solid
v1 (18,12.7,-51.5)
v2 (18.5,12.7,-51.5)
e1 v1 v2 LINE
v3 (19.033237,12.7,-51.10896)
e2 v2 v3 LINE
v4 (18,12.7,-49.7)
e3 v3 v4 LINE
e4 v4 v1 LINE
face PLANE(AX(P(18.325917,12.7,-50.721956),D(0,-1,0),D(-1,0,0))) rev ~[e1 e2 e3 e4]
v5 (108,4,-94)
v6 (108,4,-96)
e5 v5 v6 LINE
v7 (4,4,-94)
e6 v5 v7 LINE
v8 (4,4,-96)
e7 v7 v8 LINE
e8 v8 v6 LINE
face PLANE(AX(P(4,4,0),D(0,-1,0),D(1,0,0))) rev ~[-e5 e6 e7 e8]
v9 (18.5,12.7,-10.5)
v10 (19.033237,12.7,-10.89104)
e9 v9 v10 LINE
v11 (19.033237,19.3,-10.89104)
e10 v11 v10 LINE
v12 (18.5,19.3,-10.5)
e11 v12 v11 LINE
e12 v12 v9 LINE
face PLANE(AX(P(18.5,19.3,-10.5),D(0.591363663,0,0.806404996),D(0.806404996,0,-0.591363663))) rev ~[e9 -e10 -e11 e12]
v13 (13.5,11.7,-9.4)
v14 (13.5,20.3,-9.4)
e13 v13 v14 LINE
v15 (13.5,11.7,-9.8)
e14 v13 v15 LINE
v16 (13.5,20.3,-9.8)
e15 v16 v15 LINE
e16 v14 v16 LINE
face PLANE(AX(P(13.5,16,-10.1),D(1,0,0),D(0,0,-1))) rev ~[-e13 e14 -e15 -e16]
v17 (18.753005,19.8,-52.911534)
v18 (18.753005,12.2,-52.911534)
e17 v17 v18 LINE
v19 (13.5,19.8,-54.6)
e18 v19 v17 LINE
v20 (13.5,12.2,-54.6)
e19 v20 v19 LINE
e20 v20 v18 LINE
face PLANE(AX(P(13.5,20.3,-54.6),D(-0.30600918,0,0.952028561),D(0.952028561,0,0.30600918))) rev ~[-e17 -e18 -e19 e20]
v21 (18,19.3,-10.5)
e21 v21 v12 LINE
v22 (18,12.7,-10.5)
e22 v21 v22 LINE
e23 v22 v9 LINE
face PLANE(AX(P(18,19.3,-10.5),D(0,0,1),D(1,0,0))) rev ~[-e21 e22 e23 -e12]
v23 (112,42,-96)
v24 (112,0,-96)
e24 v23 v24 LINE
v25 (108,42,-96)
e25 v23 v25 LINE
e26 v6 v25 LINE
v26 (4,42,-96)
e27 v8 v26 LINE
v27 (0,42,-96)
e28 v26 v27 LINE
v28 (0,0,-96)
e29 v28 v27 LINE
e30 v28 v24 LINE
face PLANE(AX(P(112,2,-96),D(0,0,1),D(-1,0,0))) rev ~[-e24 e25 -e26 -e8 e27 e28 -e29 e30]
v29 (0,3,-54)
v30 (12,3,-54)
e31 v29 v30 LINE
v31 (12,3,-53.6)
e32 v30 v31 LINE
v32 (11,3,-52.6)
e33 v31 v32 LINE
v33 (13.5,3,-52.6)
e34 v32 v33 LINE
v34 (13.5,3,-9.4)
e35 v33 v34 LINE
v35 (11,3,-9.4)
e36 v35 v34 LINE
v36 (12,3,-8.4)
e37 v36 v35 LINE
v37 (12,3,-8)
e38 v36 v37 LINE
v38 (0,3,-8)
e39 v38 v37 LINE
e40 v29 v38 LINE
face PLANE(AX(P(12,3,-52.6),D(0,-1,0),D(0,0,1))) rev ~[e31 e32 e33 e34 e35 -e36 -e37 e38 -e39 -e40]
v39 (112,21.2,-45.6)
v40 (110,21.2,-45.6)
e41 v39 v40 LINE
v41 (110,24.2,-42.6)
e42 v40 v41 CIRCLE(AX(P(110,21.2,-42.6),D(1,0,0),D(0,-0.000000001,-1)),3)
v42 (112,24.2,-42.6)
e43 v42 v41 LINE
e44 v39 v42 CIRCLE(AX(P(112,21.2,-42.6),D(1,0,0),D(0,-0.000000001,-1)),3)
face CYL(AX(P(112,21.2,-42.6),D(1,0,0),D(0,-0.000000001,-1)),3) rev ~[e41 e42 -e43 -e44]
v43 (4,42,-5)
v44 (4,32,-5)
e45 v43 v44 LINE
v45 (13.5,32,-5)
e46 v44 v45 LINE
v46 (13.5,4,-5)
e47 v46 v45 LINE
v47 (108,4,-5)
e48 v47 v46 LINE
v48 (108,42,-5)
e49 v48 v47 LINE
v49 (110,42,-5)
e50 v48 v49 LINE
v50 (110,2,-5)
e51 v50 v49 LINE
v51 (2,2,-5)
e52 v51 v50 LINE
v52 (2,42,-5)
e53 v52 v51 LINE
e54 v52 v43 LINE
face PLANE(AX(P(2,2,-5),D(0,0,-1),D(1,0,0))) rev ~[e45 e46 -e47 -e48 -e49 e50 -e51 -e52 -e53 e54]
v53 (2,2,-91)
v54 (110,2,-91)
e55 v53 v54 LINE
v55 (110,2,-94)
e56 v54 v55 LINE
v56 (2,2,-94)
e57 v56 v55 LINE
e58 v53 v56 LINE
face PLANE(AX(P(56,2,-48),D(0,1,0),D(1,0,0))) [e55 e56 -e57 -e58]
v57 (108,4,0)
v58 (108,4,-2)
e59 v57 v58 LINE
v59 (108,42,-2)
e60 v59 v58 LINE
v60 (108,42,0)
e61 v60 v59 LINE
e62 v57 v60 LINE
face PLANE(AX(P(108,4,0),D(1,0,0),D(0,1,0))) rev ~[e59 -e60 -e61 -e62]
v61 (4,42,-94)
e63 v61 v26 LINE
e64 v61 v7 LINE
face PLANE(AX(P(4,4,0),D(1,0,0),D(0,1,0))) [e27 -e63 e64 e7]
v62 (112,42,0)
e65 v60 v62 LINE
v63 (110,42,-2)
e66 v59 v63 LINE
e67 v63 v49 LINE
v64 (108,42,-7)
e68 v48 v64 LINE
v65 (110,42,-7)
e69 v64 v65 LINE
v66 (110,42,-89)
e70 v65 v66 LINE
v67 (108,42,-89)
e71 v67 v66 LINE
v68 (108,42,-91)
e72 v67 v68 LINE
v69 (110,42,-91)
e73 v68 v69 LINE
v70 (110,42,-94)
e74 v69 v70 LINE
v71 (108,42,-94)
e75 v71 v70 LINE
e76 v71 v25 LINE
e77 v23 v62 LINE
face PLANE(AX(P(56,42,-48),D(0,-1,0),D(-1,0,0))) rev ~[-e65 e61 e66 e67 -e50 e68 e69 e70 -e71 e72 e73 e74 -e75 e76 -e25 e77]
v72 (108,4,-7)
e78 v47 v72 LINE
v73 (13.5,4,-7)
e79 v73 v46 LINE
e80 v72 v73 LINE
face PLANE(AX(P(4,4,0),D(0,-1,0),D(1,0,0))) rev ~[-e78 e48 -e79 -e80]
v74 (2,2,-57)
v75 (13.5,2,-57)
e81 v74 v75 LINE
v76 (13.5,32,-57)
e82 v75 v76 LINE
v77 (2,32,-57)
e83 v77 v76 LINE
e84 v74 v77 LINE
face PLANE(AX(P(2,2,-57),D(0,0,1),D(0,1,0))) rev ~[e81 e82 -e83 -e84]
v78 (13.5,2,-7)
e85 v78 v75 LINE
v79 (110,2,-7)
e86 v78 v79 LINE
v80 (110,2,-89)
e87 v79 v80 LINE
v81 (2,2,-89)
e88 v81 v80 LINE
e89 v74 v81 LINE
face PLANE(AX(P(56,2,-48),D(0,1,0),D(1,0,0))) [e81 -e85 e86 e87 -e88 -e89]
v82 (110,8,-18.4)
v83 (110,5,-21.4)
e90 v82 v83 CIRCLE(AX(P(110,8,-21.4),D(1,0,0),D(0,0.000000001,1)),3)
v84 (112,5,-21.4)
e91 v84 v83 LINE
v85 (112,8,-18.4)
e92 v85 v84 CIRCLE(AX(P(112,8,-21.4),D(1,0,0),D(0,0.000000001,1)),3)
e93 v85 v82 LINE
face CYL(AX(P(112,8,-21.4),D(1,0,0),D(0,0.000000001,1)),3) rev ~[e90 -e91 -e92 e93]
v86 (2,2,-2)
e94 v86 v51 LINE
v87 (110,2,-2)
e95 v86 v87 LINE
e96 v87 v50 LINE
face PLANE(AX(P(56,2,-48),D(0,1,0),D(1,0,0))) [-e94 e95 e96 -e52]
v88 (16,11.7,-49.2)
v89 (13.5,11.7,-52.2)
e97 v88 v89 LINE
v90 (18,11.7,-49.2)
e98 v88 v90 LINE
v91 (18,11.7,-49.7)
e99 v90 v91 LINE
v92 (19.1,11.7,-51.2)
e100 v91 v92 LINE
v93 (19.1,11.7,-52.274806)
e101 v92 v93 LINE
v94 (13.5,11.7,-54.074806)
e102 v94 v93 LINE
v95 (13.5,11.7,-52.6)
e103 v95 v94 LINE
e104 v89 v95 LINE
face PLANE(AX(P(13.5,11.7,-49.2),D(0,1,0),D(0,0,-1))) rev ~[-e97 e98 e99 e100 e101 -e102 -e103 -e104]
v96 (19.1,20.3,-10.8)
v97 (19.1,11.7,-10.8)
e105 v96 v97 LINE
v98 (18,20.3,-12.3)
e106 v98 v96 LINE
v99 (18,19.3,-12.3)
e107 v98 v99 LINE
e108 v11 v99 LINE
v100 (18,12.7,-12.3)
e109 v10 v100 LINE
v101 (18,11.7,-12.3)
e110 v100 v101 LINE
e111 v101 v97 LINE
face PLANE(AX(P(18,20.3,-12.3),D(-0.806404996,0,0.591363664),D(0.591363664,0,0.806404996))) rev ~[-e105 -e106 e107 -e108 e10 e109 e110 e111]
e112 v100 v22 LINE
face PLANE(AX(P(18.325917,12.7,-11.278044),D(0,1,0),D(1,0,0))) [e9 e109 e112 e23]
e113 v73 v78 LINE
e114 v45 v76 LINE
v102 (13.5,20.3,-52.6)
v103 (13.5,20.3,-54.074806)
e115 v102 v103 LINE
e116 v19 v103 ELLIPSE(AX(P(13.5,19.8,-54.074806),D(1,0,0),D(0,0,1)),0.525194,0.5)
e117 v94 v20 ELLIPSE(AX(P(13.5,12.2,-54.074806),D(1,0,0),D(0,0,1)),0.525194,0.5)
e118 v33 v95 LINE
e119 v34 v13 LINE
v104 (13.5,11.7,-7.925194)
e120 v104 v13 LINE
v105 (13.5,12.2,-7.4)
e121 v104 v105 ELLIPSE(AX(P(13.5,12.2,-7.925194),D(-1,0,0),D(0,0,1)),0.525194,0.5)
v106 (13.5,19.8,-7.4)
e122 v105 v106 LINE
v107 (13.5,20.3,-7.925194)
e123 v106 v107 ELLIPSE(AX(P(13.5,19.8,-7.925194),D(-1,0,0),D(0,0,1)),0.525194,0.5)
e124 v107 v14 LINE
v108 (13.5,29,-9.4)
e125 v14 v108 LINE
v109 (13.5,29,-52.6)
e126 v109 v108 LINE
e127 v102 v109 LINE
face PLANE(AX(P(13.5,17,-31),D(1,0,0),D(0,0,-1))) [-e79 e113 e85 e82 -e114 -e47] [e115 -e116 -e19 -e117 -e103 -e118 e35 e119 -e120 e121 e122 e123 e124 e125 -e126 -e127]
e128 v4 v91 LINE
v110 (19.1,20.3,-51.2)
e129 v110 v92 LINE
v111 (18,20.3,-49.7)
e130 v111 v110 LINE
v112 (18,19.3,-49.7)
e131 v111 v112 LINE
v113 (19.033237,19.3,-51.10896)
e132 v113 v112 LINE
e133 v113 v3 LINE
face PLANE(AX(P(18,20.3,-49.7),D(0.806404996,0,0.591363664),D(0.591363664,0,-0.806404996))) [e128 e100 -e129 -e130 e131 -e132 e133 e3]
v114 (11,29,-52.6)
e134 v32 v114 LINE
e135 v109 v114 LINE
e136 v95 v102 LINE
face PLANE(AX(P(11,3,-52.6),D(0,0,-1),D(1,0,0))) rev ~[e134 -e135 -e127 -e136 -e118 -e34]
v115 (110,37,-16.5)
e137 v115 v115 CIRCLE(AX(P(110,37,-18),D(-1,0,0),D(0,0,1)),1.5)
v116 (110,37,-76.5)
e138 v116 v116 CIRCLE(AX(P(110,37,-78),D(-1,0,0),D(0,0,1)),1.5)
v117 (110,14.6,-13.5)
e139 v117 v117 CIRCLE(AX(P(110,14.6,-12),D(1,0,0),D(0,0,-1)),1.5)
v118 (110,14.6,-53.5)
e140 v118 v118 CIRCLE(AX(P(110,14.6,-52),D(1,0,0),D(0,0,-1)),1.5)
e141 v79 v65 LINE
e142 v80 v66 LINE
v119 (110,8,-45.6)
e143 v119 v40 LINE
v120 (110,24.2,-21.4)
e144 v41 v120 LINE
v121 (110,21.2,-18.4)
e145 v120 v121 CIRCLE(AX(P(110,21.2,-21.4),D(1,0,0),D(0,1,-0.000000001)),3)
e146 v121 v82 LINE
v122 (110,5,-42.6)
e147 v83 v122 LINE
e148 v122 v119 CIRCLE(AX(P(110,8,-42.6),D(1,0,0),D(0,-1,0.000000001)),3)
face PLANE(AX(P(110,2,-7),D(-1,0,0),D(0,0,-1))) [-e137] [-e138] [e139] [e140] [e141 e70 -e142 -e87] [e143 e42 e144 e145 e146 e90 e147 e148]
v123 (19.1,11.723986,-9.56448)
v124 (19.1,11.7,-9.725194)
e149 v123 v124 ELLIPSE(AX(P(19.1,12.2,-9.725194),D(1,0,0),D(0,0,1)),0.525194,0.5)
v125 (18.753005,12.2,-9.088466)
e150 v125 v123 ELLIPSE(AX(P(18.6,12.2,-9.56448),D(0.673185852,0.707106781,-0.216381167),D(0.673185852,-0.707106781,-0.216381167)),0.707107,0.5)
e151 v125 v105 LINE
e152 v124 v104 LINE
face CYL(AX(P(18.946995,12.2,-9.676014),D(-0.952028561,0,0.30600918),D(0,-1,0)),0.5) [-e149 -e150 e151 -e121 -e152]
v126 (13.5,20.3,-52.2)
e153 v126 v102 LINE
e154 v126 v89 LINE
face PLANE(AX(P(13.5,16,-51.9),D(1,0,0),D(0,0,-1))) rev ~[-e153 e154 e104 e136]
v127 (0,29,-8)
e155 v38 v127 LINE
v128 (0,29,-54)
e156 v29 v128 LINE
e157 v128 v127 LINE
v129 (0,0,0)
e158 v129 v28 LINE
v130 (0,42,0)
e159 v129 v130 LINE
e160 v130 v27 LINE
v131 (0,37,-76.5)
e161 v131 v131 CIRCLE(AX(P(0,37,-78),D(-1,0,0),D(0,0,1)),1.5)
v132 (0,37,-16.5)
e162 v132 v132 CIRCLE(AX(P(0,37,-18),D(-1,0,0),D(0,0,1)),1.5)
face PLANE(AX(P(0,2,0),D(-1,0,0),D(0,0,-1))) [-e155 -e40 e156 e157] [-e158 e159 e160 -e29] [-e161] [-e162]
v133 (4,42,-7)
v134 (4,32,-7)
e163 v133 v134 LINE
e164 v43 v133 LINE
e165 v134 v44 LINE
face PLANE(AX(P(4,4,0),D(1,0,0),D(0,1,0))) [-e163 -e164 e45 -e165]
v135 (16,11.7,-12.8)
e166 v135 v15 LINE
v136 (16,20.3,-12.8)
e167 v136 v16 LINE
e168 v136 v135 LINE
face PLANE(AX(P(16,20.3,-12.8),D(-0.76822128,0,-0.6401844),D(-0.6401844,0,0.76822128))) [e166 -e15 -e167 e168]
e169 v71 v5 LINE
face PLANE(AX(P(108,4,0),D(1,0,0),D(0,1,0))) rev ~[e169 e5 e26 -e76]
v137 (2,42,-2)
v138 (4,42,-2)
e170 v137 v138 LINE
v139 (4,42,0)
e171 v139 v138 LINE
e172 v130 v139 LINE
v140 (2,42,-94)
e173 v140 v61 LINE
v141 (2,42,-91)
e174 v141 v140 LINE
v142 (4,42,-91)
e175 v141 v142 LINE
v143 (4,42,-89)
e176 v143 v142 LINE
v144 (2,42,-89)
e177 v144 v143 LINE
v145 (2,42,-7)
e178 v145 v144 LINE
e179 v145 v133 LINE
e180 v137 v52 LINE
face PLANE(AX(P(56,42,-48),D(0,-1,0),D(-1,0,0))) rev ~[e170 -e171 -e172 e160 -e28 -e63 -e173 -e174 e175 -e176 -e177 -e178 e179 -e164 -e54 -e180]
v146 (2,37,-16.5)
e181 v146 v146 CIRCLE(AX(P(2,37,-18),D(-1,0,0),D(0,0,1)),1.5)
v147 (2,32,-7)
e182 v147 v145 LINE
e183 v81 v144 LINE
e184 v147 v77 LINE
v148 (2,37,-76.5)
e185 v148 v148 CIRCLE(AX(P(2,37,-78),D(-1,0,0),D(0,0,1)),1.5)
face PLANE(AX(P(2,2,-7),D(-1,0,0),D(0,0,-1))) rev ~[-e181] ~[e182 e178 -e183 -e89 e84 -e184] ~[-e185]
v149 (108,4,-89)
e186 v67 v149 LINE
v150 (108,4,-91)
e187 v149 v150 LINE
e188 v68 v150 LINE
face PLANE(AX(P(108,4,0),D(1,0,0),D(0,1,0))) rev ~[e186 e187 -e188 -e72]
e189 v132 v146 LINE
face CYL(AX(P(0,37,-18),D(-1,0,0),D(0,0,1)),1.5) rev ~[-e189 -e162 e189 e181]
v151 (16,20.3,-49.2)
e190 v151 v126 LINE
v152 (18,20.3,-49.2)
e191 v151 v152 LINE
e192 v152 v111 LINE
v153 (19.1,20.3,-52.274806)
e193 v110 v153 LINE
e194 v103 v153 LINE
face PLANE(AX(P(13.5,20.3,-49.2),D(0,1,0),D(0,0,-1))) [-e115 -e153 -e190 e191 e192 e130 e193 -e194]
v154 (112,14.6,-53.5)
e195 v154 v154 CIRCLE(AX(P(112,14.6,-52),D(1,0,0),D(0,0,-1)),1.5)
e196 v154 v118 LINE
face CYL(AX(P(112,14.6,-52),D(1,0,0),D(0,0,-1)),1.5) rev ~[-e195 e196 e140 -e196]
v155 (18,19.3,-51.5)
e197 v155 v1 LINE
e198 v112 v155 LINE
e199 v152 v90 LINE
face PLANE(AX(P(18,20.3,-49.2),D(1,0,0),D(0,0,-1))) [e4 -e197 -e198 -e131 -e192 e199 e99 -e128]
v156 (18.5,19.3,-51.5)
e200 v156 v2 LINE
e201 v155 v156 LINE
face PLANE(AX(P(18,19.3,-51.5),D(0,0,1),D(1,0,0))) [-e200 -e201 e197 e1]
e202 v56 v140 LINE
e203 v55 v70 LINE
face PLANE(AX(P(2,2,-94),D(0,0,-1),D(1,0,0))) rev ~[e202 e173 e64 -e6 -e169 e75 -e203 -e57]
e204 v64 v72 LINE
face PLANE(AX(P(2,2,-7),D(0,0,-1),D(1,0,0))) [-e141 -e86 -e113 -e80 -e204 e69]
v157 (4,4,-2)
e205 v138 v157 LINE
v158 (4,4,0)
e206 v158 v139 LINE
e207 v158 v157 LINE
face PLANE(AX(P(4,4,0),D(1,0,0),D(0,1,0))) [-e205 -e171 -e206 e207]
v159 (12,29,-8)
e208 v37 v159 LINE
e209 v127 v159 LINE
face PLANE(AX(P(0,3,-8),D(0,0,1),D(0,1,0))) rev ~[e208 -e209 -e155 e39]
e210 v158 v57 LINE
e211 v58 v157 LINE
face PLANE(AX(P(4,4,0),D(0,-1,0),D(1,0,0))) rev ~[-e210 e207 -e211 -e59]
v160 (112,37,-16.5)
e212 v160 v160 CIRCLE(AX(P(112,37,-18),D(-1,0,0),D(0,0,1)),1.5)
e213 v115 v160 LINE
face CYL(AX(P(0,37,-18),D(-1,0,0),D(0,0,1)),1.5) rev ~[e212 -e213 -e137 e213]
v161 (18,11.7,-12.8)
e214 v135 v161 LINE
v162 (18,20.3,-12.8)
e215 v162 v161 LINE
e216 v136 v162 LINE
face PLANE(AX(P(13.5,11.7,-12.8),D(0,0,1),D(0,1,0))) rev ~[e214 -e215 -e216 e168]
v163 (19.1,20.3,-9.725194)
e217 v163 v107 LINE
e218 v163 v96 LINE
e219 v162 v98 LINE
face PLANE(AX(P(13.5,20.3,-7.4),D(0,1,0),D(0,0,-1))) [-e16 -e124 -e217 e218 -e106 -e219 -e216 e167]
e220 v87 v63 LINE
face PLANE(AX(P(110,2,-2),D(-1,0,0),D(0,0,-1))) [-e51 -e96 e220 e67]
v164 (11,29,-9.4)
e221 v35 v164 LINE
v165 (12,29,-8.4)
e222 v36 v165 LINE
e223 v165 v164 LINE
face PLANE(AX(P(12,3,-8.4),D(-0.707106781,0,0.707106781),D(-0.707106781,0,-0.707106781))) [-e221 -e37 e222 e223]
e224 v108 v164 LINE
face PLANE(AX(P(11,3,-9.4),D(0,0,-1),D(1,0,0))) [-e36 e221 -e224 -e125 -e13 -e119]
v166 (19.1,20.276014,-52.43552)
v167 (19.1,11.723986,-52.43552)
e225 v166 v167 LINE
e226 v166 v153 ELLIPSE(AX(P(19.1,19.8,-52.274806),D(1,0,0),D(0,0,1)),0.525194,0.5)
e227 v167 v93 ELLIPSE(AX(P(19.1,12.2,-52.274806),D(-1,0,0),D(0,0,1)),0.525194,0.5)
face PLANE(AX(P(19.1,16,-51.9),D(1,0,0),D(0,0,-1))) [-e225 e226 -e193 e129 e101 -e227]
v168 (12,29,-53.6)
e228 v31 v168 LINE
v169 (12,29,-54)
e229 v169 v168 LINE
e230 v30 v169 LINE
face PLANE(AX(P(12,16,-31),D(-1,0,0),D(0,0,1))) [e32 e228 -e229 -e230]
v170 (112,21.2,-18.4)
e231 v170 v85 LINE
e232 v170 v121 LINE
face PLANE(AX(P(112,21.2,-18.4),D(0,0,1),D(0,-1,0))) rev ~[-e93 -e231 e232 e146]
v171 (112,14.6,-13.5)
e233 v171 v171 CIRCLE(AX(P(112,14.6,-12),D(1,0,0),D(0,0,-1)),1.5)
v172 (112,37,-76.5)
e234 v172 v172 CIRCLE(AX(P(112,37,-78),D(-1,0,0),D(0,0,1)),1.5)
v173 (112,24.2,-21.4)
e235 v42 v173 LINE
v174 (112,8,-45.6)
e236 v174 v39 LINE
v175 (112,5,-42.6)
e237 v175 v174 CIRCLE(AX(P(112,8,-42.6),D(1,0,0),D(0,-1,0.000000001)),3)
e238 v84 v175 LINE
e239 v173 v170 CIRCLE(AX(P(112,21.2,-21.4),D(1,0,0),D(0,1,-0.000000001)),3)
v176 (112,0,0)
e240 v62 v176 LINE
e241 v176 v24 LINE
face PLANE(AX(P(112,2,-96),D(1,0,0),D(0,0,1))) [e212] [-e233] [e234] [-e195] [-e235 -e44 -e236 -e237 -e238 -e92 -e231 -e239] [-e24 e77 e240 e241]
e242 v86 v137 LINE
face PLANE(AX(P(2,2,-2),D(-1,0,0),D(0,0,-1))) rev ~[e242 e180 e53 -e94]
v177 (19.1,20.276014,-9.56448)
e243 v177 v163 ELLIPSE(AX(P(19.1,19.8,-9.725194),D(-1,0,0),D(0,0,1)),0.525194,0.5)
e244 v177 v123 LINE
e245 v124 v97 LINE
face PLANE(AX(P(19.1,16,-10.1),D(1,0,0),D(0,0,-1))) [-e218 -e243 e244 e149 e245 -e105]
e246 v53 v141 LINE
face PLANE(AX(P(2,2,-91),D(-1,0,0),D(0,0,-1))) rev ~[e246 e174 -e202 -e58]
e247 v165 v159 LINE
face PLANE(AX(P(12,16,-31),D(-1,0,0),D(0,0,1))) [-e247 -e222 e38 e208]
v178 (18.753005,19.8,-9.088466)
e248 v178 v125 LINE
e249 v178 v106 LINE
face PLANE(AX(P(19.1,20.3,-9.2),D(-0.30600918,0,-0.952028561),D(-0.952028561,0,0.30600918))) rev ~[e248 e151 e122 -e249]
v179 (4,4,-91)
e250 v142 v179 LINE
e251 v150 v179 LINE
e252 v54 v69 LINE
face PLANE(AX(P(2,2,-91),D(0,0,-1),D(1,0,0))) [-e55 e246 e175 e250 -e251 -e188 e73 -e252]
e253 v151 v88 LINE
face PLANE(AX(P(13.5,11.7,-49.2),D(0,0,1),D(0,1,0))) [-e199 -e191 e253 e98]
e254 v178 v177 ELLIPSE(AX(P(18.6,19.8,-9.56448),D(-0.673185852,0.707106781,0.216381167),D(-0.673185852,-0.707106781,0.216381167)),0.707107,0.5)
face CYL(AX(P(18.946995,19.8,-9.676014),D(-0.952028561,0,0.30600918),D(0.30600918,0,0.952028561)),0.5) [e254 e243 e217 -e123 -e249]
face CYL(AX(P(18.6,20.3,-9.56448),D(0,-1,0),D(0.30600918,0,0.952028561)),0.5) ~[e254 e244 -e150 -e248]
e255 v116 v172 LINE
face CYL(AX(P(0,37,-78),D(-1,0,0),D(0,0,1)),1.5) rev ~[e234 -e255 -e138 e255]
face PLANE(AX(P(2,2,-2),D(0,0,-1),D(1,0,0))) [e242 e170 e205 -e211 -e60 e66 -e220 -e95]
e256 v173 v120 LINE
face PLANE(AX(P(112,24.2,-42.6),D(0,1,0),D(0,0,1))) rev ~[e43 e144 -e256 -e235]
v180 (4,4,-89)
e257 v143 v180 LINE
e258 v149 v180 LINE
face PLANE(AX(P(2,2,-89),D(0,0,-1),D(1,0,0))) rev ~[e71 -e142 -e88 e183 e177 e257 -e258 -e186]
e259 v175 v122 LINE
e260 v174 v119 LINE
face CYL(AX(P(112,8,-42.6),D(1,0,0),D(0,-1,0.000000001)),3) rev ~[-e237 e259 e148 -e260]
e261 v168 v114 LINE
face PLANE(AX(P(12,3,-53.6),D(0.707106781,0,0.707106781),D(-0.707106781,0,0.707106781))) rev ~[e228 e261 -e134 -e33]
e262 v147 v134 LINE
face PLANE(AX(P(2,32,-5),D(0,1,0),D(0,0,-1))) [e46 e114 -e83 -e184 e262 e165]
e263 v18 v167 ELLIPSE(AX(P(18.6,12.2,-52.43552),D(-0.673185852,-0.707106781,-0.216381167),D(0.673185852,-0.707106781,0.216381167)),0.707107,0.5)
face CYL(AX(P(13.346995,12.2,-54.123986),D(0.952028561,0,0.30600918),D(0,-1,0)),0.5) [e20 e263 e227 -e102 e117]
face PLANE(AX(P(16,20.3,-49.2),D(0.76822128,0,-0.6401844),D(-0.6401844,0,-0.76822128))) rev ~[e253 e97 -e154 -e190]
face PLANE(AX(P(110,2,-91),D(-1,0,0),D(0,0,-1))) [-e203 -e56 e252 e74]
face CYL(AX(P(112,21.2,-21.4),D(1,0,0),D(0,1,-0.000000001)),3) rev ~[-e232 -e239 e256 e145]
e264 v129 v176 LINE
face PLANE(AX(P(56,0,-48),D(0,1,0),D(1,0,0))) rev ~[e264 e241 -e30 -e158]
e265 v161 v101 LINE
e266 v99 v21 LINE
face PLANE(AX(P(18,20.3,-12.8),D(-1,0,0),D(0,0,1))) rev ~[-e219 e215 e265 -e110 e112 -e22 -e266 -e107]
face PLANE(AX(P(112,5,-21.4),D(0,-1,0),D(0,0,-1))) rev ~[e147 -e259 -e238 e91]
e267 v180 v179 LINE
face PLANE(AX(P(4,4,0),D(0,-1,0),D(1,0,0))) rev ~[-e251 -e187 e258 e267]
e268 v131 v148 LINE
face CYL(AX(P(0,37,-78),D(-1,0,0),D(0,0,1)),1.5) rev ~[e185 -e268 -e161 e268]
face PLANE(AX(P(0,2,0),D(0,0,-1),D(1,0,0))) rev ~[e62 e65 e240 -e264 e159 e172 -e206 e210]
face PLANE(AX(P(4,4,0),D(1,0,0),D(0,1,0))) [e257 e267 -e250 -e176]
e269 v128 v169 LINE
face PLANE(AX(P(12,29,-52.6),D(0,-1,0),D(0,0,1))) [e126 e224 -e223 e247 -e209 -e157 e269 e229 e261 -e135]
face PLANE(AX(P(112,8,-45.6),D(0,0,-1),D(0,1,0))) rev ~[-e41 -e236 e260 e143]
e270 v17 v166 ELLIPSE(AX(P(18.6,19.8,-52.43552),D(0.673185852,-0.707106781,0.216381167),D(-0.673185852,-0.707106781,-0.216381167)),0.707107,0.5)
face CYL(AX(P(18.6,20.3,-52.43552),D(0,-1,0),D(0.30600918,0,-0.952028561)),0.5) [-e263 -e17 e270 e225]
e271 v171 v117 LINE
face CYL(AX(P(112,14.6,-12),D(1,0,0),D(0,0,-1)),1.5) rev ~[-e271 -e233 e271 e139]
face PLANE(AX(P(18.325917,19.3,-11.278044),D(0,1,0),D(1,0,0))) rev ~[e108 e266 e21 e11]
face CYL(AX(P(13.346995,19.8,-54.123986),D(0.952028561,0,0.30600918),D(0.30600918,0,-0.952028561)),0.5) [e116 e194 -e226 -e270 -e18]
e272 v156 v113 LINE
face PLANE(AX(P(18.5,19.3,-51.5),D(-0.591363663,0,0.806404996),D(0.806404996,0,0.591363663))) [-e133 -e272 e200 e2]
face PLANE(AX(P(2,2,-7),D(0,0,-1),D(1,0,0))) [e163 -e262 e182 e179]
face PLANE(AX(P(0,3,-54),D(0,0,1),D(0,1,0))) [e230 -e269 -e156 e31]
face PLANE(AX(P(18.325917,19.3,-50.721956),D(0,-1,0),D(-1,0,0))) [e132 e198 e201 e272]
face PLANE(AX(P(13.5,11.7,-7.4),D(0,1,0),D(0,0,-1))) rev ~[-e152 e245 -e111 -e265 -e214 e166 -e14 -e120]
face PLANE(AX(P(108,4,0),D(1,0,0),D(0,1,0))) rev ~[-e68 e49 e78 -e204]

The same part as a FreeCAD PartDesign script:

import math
import FreeCAD as App
import Part
import Sketcher


def edges_at(feature, points):
    """Names of the edges that pass closest to the given points."""
    edges = feature.Shape.Edges
    near = lambda p: min(range(len(edges)), key=lambda i: edges[i].distToShape(Part.Vertex(*p))[0])
    return sorted({f"Edge{near(p) + 1}" for p in points})

doc = App.newDocument("Part")
params = doc.addObject("Spreadsheet::Sheet", "Params")
for row, (alias, value) in enumerate([
    ("sketch1_width", "112 mm"),
    ("sketch1_height", "96 mm"),
    ("pad1_length", "2 mm"),
    ("sketch2_width", "112 mm"),
    ("sketch2_width2", "108 mm"),
    ("sketch2_height", "96 mm"),
    ("sketch2_height2", "3 mm"),
    ("sketch2_height3", "82 mm"),
    ("pad2_length", "40 mm"),
    ("sketch3_width", "104 mm"),
    ("sketch3_height", "38 mm"),
    ("sketch4_width", "30 mm"),
    ("sketch4_height", "52 mm"),
    ("pad3_length", "11.5 mm"),
    ("sketch5_width", "26 mm"),
    ("sketch5_height", "46 mm"),
    ("pocket2_length", "12 mm"),
    ("sketch6_width", "26 mm"),
    ("sketch6_height", "43.2 mm"),
    ("pocket3_length", "1.5 mm"),
    ("sketch7_width", "1 mm"),
    ("pad4_length", "26 mm"),
    ("sketch8_width", "8.6 mm"),
    ("sketch8_height", "5.4 mm"),
    ("pad5_length", "5.6 mm"),
    ("sketch9_width", "5.6 mm"),
    ("sketch9_height", "1.8 mm"),
    ("pocket4_length", "8.6 mm"),
    ("sketch10_height", "3 mm"),
    ("sketch10_width", "2.5 mm"),
    ("pocket5_length", "8.6 mm"),
    ("sketch11_height", "2 mm"),
    ("sketch11_width", "1.1 mm"),
    ("sketch11_height2", "0.5 mm"),
    ("pocket6_length", "8.6 mm"),
    ("sketch12_width", "0.5 mm"),
    ("sketch12_height", "1.8 mm"),
    ("pocket7_length", "6.6 mm"),
    ("fillet_radius", "0.5 mm"),
    ("fillet2_radius", "0.5 mm"),
    ("sketch13_radius", "3 mm"),
    ("sketch13_width", "13.2 mm"),
    ("sketch13_height", "21.2 mm"),
    ("pocket8_length", "2 mm"),
    ("sketch14_diameter", "3 mm"),
    ("pocket9_length", "2 mm"),
    ("sketch15_diameter", "3 mm"),
], start=1):
    params.set(f"A{row}", alias)
    params.set(f"B{row}", "=" + value)
    params.setAlias(f"B{row}", alias)

body = doc.addObject("PartDesign::Body", "Body")

sketch1 = body.newObject("Sketcher::SketchObject", "Sketch")
sketch1.AttachmentSupport = (doc.getObject("XZ_Plane"), [""])
sketch1.MapMode = "FlatFace"
sketch1.addGeometry([
    Part.LineSegment(App.Vector(0, -96, 0), App.Vector(0, 0, 0)),
    Part.LineSegment(App.Vector(0, 0, 0), App.Vector(112, 0, 0)),
    Part.LineSegment(App.Vector(112, 0, 0), App.Vector(112, -96, 0)),
    Part.LineSegment(App.Vector(112, -96, 0), App.Vector(0, -96, 0)),
], False)
sketch1.addConstraint([
    Sketcher.Constraint("Coincident", 0, 2, 1, 1),
    Sketcher.Constraint("Coincident", 1, 2, 2, 1),
    Sketcher.Constraint("Coincident", 2, 2, 3, 1),
    Sketcher.Constraint("Coincident", 3, 2, 0, 1),
    Sketcher.Constraint("Vertical", 0),
    Sketcher.Constraint("Horizontal", 1),
    Sketcher.Constraint("Vertical", 2),
    Sketcher.Constraint("Horizontal", 3),
    Sketcher.Constraint("Coincident", 0, 2, -1, 1),
    Sketcher.Constraint("DistanceX", 1, 1, 1, 2, 112.0),
    Sketcher.Constraint("DistanceY", 0, 1, 0, 2, 96.0),
])
sketch1.setExpression("Constraints[9]", "Params.sketch1_width")
sketch1.setExpression("Constraints[10]", "Params.sketch1_height")
pad1 = body.newObject("PartDesign::Pad", "Pad")
pad1.Profile = sketch1
pad1.setExpression("Length", "Params.pad1_length")
pad1.Reversed = True

sketch2 = body.newObject("Sketcher::SketchObject", "Sketch001")
sketch2.AttachmentSupport = (doc.getObject("XZ_Plane"), [""])
sketch2.MapMode = "FlatFace"
sketch2.AttachmentOffset = App.Placement(App.Vector(0, 0, -2), App.Rotation())
sketch2.addGeometry([
    Part.LineSegment(App.Vector(112, -96, 0), App.Vector(0, -96, 0)),
    Part.LineSegment(App.Vector(0, -96, 0), App.Vector(0, 0, 0)),
    Part.LineSegment(App.Vector(0, 0, 0), App.Vector(112, 0, 0)),
    Part.LineSegment(App.Vector(112, 0, 0), App.Vector(112, -96, 0)),
    Part.LineSegment(App.Vector(2, -2, 0), App.Vector(2, -5, 0)),
    Part.LineSegment(App.Vector(2, -5, 0), App.Vector(110, -5, 0)),
    Part.LineSegment(App.Vector(110, -5, 0), App.Vector(110, -2, 0)),
    Part.LineSegment(App.Vector(110, -2, 0), App.Vector(2, -2, 0)),
    Part.LineSegment(App.Vector(2, -7, 0), App.Vector(2, -89, 0)),
    Part.LineSegment(App.Vector(2, -89, 0), App.Vector(110, -89, 0)),
    Part.LineSegment(App.Vector(110, -89, 0), App.Vector(110, -7, 0)),
    Part.LineSegment(App.Vector(110, -7, 0), App.Vector(2, -7, 0)),
    Part.LineSegment(App.Vector(2, -91, 0), App.Vector(2, -94, 0)),
    Part.LineSegment(App.Vector(2, -94, 0), App.Vector(110, -94, 0)),
    Part.LineSegment(App.Vector(110, -94, 0), App.Vector(110, -91, 0)),
    Part.LineSegment(App.Vector(110, -91, 0), App.Vector(2, -91, 0)),
], False)
sketch2.addConstraint([
    Sketcher.Constraint("Coincident", 0, 2, 1, 1),
    Sketcher.Constraint("Coincident", 1, 2, 2, 1),
    Sketcher.Constraint("Coincident", 2, 2, 3, 1),
    Sketcher.Constraint("Coincident", 3, 2, 0, 1),
    Sketcher.Constraint("Coincident", 4, 2, 5, 1),
    Sketcher.Constraint("Coincident", 5, 2, 6, 1),
    Sketcher.Constraint("Coincident", 6, 2, 7, 1),
    Sketcher.Constraint("Coincident", 7, 2, 4, 1),
    Sketcher.Constraint("Coincident", 8, 2, 9, 1),
    Sketcher.Constraint("Coincident", 9, 2, 10, 1),
    Sketcher.Constraint("Coincident", 10, 2, 11, 1),
    Sketcher.Constraint("Coincident", 11, 2, 8, 1),
    Sketcher.Constraint("Coincident", 12, 2, 13, 1),
    Sketcher.Constraint("Coincident", 13, 2, 14, 1),
    Sketcher.Constraint("Coincident", 14, 2, 15, 1),
    Sketcher.Constraint("Coincident", 15, 2, 12, 1),
    Sketcher.Constraint("Horizontal", 0),
    Sketcher.Constraint("Vertical", 1),
    Sketcher.Constraint("Horizontal", 2),
    Sketcher.Constraint("Vertical", 3),
    Sketcher.Constraint("Vertical", 4),
    Sketcher.Constraint("Horizontal", 5),
    Sketcher.Constraint("Vertical", 6),
    Sketcher.Constraint("Horizontal", 7),
    Sketcher.Constraint("Vertical", 8),
    Sketcher.Constraint("Horizontal", 9),
    Sketcher.Constraint("Vertical", 10),
    Sketcher.Constraint("Horizontal", 11),
    Sketcher.Constraint("Vertical", 12),
    Sketcher.Constraint("Horizontal", 13),
    Sketcher.Constraint("Vertical", 14),
    Sketcher.Constraint("Horizontal", 15),
    Sketcher.Constraint("Coincident", 1, 2, -1, 1),
    Sketcher.Constraint("Vertical", 7, 2, 8, 2),
    Sketcher.Constraint("Vertical", 6, 2, 9, 2),
    Sketcher.Constraint("Vertical", 11, 2, 12, 2),
    Sketcher.Constraint("Vertical", 10, 2, 13, 2),
    Sketcher.Constraint("Equal", 6, 12),
    Sketcher.Constraint("DistanceX", 0, 2, 0, 1, 112.0),
    Sketcher.Constraint("DistanceX", 5, 1, 5, 2, 108.0),
    Sketcher.Constraint("DistanceY", 1, 1, 1, 2, 96.0),
    Sketcher.Constraint("DistanceY", 4, 2, 4, 1, 3.0),
    Sketcher.Constraint("DistanceY", 8, 2, 8, 1, 82.0),
    Sketcher.Constraint("DistanceX", -1, 1, 4, 2, 2.0),
    Sketcher.Constraint("DistanceY", 4, 2, -1, 1, 5.0),
    Sketcher.Constraint("DistanceY", 8, 2, -1, 1, 89.0),
    Sketcher.Constraint("DistanceY", 12, 2, -1, 1, 94.0),
])
sketch2.setExpression("Constraints[38]", "Params.sketch2_width")
sketch2.setExpression("Constraints[39]", "Params.sketch2_width2")
sketch2.setExpression("Constraints[40]", "Params.sketch2_height")
sketch2.setExpression("Constraints[41]", "Params.sketch2_height2")
sketch2.setExpression("Constraints[42]", "Params.sketch2_height3")
pad2 = body.newObject("PartDesign::Pad", "Pad001")
pad2.Profile = sketch2
pad2.setExpression("Length", "Params.pad2_length")
pad2.Reversed = True

sketch3 = body.newObject("Sketcher::SketchObject", "Sketch002")
sketch3.AttachmentSupport = (doc.getObject("XY_Plane"), [""])
sketch3.MapMode = "FlatFace"
sketch3.addGeometry([
    Part.LineSegment(App.Vector(4, 42, 0), App.Vector(4, 4, 0)),
    Part.LineSegment(App.Vector(4, 4, 0), App.Vector(108, 4, 0)),
    Part.LineSegment(App.Vector(108, 4, 0), App.Vector(108, 42, 0)),
    Part.LineSegment(App.Vector(108, 42, 0), App.Vector(4, 42, 0)),
], False)
sketch3.addConstraint([
    Sketcher.Constraint("Coincident", 0, 2, 1, 1),
    Sketcher.Constraint("Coincident", 1, 2, 2, 1),
    Sketcher.Constraint("Coincident", 2, 2, 3, 1),
    Sketcher.Constraint("Coincident", 3, 2, 0, 1),
    Sketcher.Constraint("Vertical", 0),
    Sketcher.Constraint("Horizontal", 1),
    Sketcher.Constraint("Vertical", 2),
    Sketcher.Constraint("Horizontal", 3),
    Sketcher.Constraint("DistanceX", 1, 1, 1, 2, 104.0),
    Sketcher.Constraint("DistanceY", 0, 2, 0, 1, 38.0),
    Sketcher.Constraint("DistanceX", -1, 1, 0, 2, 4.0),
    Sketcher.Constraint("DistanceY", -1, 1, 0, 2, 4.0),
])
sketch3.setExpression("Constraints[8]", "Params.sketch3_width")
sketch3.setExpression("Constraints[9]", "Params.sketch3_height")
pocket1 = body.newObject("PartDesign::Pocket", "Pocket")
pocket1.Profile = sketch3
pocket1.Type = "ThroughAll"

sketch4 = body.newObject("Sketcher::SketchObject", "Sketch003")
sketch4.AttachmentSupport = (doc.getObject("YZ_Plane"), [""])
sketch4.MapMode = "FlatFace"
sketch4.AttachmentOffset = App.Placement(App.Vector(0, 0, 2), App.Rotation())
sketch4.addGeometry([
    Part.LineSegment(App.Vector(32, -5, 0), App.Vector(2, -5, 0)),
    Part.LineSegment(App.Vector(2, -5, 0), App.Vector(2, -57, 0)),
    Part.LineSegment(App.Vector(2, -57, 0), App.Vector(32, -57, 0)),
    Part.LineSegment(App.Vector(32, -57, 0), App.Vector(32, -5, 0)),
], False)
sketch4.addConstraint([
    Sketcher.Constraint("Coincident", 0, 2, 1, 1),
    Sketcher.Constraint("Coincident", 1, 2, 2, 1),
    Sketcher.Constraint("Coincident", 2, 2, 3, 1),
    Sketcher.Constraint("Coincident", 3, 2, 0, 1),
    Sketcher.Constraint("Horizontal", 0),
    Sketcher.Constraint("Vertical", 1),
    Sketcher.Constraint("Horizontal", 2),
    Sketcher.Constraint("Vertical", 3),
    Sketcher.Constraint("DistanceX", 0, 2, 0, 1, 30.0),
    Sketcher.Constraint("DistanceY", 1, 2, 1, 1, 52.0),
    Sketcher.Constraint("DistanceX", -1, 1, 0, 2, 2.0),
    Sketcher.Constraint("DistanceY", 0, 2, -1, 1, 5.0),
])
sketch4.setExpression("Constraints[8]", "Params.sketch4_width")
sketch4.setExpression("Constraints[9]", "Params.sketch4_height")
pad3 = body.newObject("PartDesign::Pad", "Pad002")
pad3.Profile = sketch4
pad3.setExpression("Length", "Params.pad3_length")

sketch5 = body.newObject("Sketcher::SketchObject", "Sketch004")
sketch5.AttachmentSupport = (doc.getObject("YZ_Plane"), [""])
sketch5.MapMode = "FlatFace"
sketch5.addGeometry([
    Part.LineSegment(App.Vector(29, -54, 0), App.Vector(3, -54, 0)),
    Part.LineSegment(App.Vector(3, -54, 0), App.Vector(3, -8, 0)),
    Part.LineSegment(App.Vector(3, -8, 0), App.Vector(29, -8, 0)),
    Part.LineSegment(App.Vector(29, -8, 0), App.Vector(29, -54, 0)),
], False)
sketch5.addConstraint([
    Sketcher.Constraint("Coincident", 0, 2, 1, 1),
    Sketcher.Constraint("Coincident", 1, 2, 2, 1),
    Sketcher.Constraint("Coincident", 2, 2, 3, 1),
    Sketcher.Constraint("Coincident", 3, 2, 0, 1),
    Sketcher.Constraint("Horizontal", 0),
    Sketcher.Constraint("Vertical", 1),
    Sketcher.Constraint("Horizontal", 2),
    Sketcher.Constraint("Vertical", 3),
    Sketcher.Constraint("DistanceX", 0, 2, 0, 1, 26.0),
    Sketcher.Constraint("DistanceY", 1, 1, 1, 2, 46.0),
    Sketcher.Constraint("DistanceX", -1, 1, 0, 2, 3.0),
    Sketcher.Constraint("DistanceY", 0, 2, -1, 1, 54.0),
])
sketch5.setExpression("Constraints[8]", "Params.sketch5_width")
sketch5.setExpression("Constraints[9]", "Params.sketch5_height")
pocket2 = body.newObject("PartDesign::Pocket", "Pocket001")
pocket2.Profile = sketch5
pocket2.setExpression("Length", "Params.pocket2_length")
pocket2.Reversed = True

sketch6 = body.newObject("Sketcher::SketchObject", "Sketch005")
sketch6.AttachmentSupport = (doc.getObject("YZ_Plane"), [""])
sketch6.MapMode = "FlatFace"
sketch6.AttachmentOffset = App.Placement(App.Vector(0, 0, 12), App.Rotation())
sketch6.addGeometry([
    Part.LineSegment(App.Vector(29, -53, 0), App.Vector(3, -53, 0)),
    Part.LineSegment(App.Vector(3, -53, 0), App.Vector(3, -9, 0)),
    Part.LineSegment(App.Vector(3, -9, 0), App.Vector(29, -9, 0)),
    Part.LineSegment(App.Vector(29, -9, 0), App.Vector(29, -53, 0)),
], False)
sketch6.addConstraint([
    Sketcher.Constraint("Coincident", 0, 2, 1, 1),
    Sketcher.Constraint("Coincident", 1, 2, 2, 1),
    Sketcher.Constraint("Coincident", 2, 2, 3, 1),
    Sketcher.Constraint("Coincident", 3, 2, 0, 1),
    Sketcher.Constraint("Horizontal", 0),
    Sketcher.Constraint("Vertical", 1),
    Sketcher.Constraint("Horizontal", 2),
    Sketcher.Constraint("Vertical", 3),
    Sketcher.Constraint("DistanceX", 0, 2, 0, 1, 26.0),
    Sketcher.Constraint("DistanceY", 1, 1, 1, 2, 43.2),
    Sketcher.Constraint("DistanceX", -1, 1, 0, 2, 3.0),
    Sketcher.Constraint("DistanceY", 0, 2, -1, 1, 52.6),
])
sketch6.setExpression("Constraints[8]", "Params.sketch6_width")
sketch6.setExpression("Constraints[9]", "Params.sketch6_height")
pocket3 = body.newObject("PartDesign::Pocket", "Pocket002")
pocket3.Profile = sketch6
pocket3.setExpression("Length", "Params.pocket3_length")
pocket3.Reversed = True

sketch7 = body.newObject("Sketcher::SketchObject", "Sketch006")
sketch7.AttachmentSupport = (doc.getObject("XZ_Plane"), [""])
sketch7.MapMode = "FlatFace"
sketch7.AttachmentOffset = App.Placement(App.Vector(0, 0, -3), App.Rotation())
sketch7.addGeometry([
    Part.LineSegment(App.Vector(12, -52.6, 0), App.Vector(12, -53.6, 0)),
    Part.LineSegment(App.Vector(12, -53.6, 0), App.Vector(11, -52.6, 0)),
    Part.LineSegment(App.Vector(11, -52.6, 0), App.Vector(12, -52.6, 0)),
    Part.LineSegment(App.Vector(12, -8.4, 0), App.Vector(12, -9.4, 0)),
    Part.LineSegment(App.Vector(12, -9.4, 0), App.Vector(11, -9.4, 0)),
    Part.LineSegment(App.Vector(11, -9.4, 0), App.Vector(12, -8.4, 0)),
], False)
sketch7.addConstraint([
    Sketcher.Constraint("Coincident", 0, 2, 1, 1),
    Sketcher.Constraint("Coincident", 1, 2, 2, 1),
    Sketcher.Constraint("Coincident", 2, 2, 0, 1),
    Sketcher.Constraint("Coincident", 3, 2, 4, 1),
    Sketcher.Constraint("Coincident", 4, 2, 5, 1),
    Sketcher.Constraint("Coincident", 5, 2, 3, 1),
    Sketcher.Constraint("Vertical", 0),
    Sketcher.Constraint("Horizontal", 2),
    Sketcher.Constraint("Vertical", 3),
    Sketcher.Constraint("Horizontal", 4),
    Sketcher.Constraint("Perpendicular", 1, 5),
    Sketcher.Constraint("Vertical", 2, 2, 3, 2),
    Sketcher.Constraint("Vertical", 1, 2, 4, 2),
    Sketcher.Constraint("Equal", 4, 0),
    Sketcher.Constraint("DistanceX", 2, 1, 2, 2, 1.0),
    Sketcher.Constraint("DistanceX", -1, 1, 0, 2, 12.0),
    Sketcher.Constraint("DistanceY", 0, 2, -1, 1, 53.6),
    Sketcher.Constraint("DistanceY", 3, 2, -1, 1, 9.4),
])
sketch7.setExpression("Constraints[14]", "Params.sketch7_width")
pad4 = body.newObject("PartDesign::Pad", "Pad003")
pad4.Profile = sketch7
pad4.setExpression("Length", "Params.pad4_length")
pad4.Reversed = True

sketch8 = body.newObject("Sketcher::SketchObject", "Sketch007")
sketch8.AttachmentSupport = (doc.getObject("YZ_Plane"), [""])
sketch8.MapMode = "FlatFace"
sketch8.AttachmentOffset = App.Placement(App.Vector(0, 0, 13.5), App.Rotation())
sketch8.addGeometry([
    Part.LineSegment(App.Vector(20, -7, 0), App.Vector(12, -7, 0)),
    Part.LineSegment(App.Vector(12, -7, 0), App.Vector(12, -13, 0)),
    Part.LineSegment(App.Vector(12, -13, 0), App.Vector(20, -13, 0)),
    Part.LineSegment(App.Vector(20, -13, 0), App.Vector(20, -7, 0)),
    Part.LineSegment(App.Vector(20, -49, 0), App.Vector(12, -49, 0)),
    Part.LineSegment(App.Vector(12, -49, 0), App.Vector(12, -55, 0)),
    Part.LineSegment(App.Vector(12, -55, 0), App.Vector(20, -55, 0)),
    Part.LineSegment(App.Vector(20, -55, 0), App.Vector(20, -49, 0)),
], False)
sketch8.addConstraint([
    Sketcher.Constraint("Coincident", 0, 2, 1, 1),
    Sketcher.Constraint("Coincident", 1, 2, 2, 1),
    Sketcher.Constraint("Coincident", 2, 2, 3, 1),
    Sketcher.Constraint("Coincident", 3, 2, 0, 1),
    Sketcher.Constraint("Coincident", 4, 2, 5, 1),
    Sketcher.Constraint("Coincident", 5, 2, 6, 1),
    Sketcher.Constraint("Coincident", 6, 2, 7, 1),
    Sketcher.Constraint("Coincident", 7, 2, 4, 1),
    Sketcher.Constraint("Horizontal", 0),
    Sketcher.Constraint("Vertical", 1),
    Sketcher.Constraint("Horizontal", 2),
    Sketcher.Constraint("Vertical", 3),
    Sketcher.Constraint("Horizontal", 4),
    Sketcher.Constraint("Vertical", 5),
    Sketcher.Constraint("Horizontal", 6),
    Sketcher.Constraint("Vertical", 7),
    Sketcher.Constraint("Vertical", 1, 2, 4, 2),
    Sketcher.Constraint("Vertical", 3, 2, 6, 2),
    Sketcher.Constraint("Equal", 3, 5),
    Sketcher.Constraint("DistanceX", 0, 2, 0, 1, 8.6),
    Sketcher.Constraint("DistanceY", 1, 2, 1, 1, 5.4),
    Sketcher.Constraint("DistanceX", -1, 1, 0, 2, 11.7),
    Sketcher.Constraint("DistanceY", 0, 2, -1, 1, 7.4),
    Sketcher.Constraint("DistanceY", 4, 2, -1, 1, 49.2),
])
sketch8.setExpression("Constraints[19]", "Params.sketch8_width")
sketch8.setExpression("Constraints[20]", "Params.sketch8_height")
pad5 = body.newObject("PartDesign::Pad", "Pad004")
pad5.Profile = sketch8
pad5.setExpression("Length", "Params.pad5_length")

sketch9 = body.newObject("Sketcher::SketchObject", "Sketch008")
sketch9.AttachmentSupport = (doc.getObject("XZ_Plane"), [""])
sketch9.MapMode = "FlatFace"
sketch9.AttachmentOffset = App.Placement(App.Vector(0, 0, -20.3), App.Rotation())
sketch9.addGeometry([
    Part.LineSegment(App.Vector(13.5, -54.6, 0), App.Vector(19.1, -52.8, 0)),
    Part.LineSegment(App.Vector(19.1, -52.8, 0), App.Vector(19.1, -54.6, 0)),
    Part.LineSegment(App.Vector(19.1, -54.6, 0), App.Vector(13.5, -54.6, 0)),
    Part.LineSegment(App.Vector(13.5, -7.4, 0), App.Vector(19.1, -7.4, 0)),
    Part.LineSegment(App.Vector(19.1, -7.4, 0), App.Vector(19.1, -9.2, 0)),
    Part.LineSegment(App.Vector(19.1, -9.2, 0), App.Vector(13.5, -7.4, 0)),
], False)
sketch9.addConstraint([
    Sketcher.Constraint("Coincident", 0, 2, 1, 1),
    Sketcher.Constraint("Coincident", 1, 2, 2, 1),
    Sketcher.Constraint("Coincident", 2, 2, 0, 1),
    Sketcher.Constraint("Coincident", 3, 2, 4, 1),
    Sketcher.Constraint("Coincident", 4, 2, 5, 1),
    Sketcher.Constraint("Coincident", 5, 2, 3, 1),
    Sketcher.Constraint("Vertical", 1),
    Sketcher.Constraint("Horizontal", 2),
    Sketcher.Constraint("Horizontal", 3),
    Sketcher.Constraint("Vertical", 4),
    Sketcher.Constraint("Vertical", 1, 2, 3, 2),
    Sketcher.Constraint("Vertical", 2, 2, 5, 2),
    Sketcher.Constraint("Equal", 1, 4),
    Sketcher.Constraint("DistanceX", 2, 2, 2, 1, 5.6),
    Sketcher.Constraint("DistanceY", 1, 2, 1, 1, 1.8),
    Sketcher.Constraint("DistanceX", -1, 1, 0, 2, 19.1),
    Sketcher.Constraint("DistanceY", 0, 2, -1, 1, 52.8),
    Sketcher.Constraint("DistanceY", 3, 2, -1, 1, 7.4),
])
sketch9.setExpression("Constraints[13]", "Params.sketch9_width")
sketch9.setExpression("Constraints[14]", "Params.sketch9_height")
pocket4 = body.newObject("PartDesign::Pocket", "Pocket003")
pocket4.Profile = sketch9
pocket4.setExpression("Length", "Params.pocket4_length")
pocket4.Reversed = True

sketch10 = body.newObject("Sketcher::SketchObject", "Sketch009")
sketch10.AttachmentSupport = (doc.getObject("XZ_Plane"), [""])
sketch10.MapMode = "FlatFace"
sketch10.AttachmentOffset = App.Placement(App.Vector(0, 0, -20.3), App.Rotation())
sketch10.addGeometry([
    Part.LineSegment(App.Vector(16, -12.8, 0), App.Vector(13.5, -12.8, 0)),
    Part.LineSegment(App.Vector(13.5, -12.8, 0), App.Vector(13.5, -9.8, 0)),
    Part.LineSegment(App.Vector(13.5, -9.8, 0), App.Vector(16, -12.8, 0)),
    Part.LineSegment(App.Vector(13.5, -49.2, 0), App.Vector(16, -49.2, 0)),
    Part.LineSegment(App.Vector(16, -49.2, 0), App.Vector(13.5, -52.2, 0)),
    Part.LineSegment(App.Vector(13.5, -52.2, 0), App.Vector(13.5, -49.2, 0)),
], False)
sketch10.addConstraint([
    Sketcher.Constraint("Coincident", 0, 2, 1, 1),
    Sketcher.Constraint("Coincident", 1, 2, 2, 1),
    Sketcher.Constraint("Coincident", 2, 2, 0, 1),
    Sketcher.Constraint("Coincident", 3, 2, 4, 1),
    Sketcher.Constraint("Coincident", 4, 2, 5, 1),
    Sketcher.Constraint("Coincident", 5, 2, 3, 1),
    Sketcher.Constraint("Horizontal", 0),
    Sketcher.Constraint("Vertical", 1),
    Sketcher.Constraint("Horizontal", 3),
    Sketcher.Constraint("Vertical", 5),
    Sketcher.Constraint("Vertical", 2, 2, 3, 2),
    Sketcher.Constraint("Vertical", 1, 2, 4, 2),
    Sketcher.Constraint("Equal", 1, 5),
    Sketcher.Constraint("DistanceY", 1, 1, 1, 2, 3.0),
    Sketcher.Constraint("DistanceX", 0, 2, 0, 1, 2.5),
    Sketcher.Constraint("DistanceX", -1, 1, 2, 2, 16.0),
    Sketcher.Constraint("DistanceY", 0, 2, -1, 1, 12.8),
    Sketcher.Constraint("DistanceY", 3, 2, -1, 1, 49.2),
])
sketch10.setExpression("Constraints[13]", "Params.sketch10_height")
sketch10.setExpression("Constraints[14]", "Params.sketch10_width")
pocket5 = body.newObject("PartDesign::Pocket", "Pocket004")
pocket5.Profile = sketch10
pocket5.setExpression("Length", "Params.pocket5_length")
pocket5.Reversed = True

sketch11 = body.newObject("Sketcher::SketchObject", "Sketch010")
sketch11.AttachmentSupport = (doc.getObject("XZ_Plane"), [""])
sketch11.MapMode = "FlatFace"
sketch11.AttachmentOffset = App.Placement(App.Vector(0, 0, -20.3), App.Rotation())
sketch11.addGeometry([
    Part.LineSegment(App.Vector(18, -49.2, 0), App.Vector(19.1, -49.2, 0)),
    Part.LineSegment(App.Vector(19.1, -49.2, 0), App.Vector(19.1, -51.2, 0)),
    Part.LineSegment(App.Vector(19.1, -51.2, 0), App.Vector(18, -49.7, 0)),
    Part.LineSegment(App.Vector(18, -49.7, 0), App.Vector(18, -49.2, 0)),
    Part.LineSegment(App.Vector(19.1, -12.8, 0), App.Vector(18, -12.8, 0)),
    Part.LineSegment(App.Vector(18, -12.8, 0), App.Vector(18, -12.3, 0)),
    Part.LineSegment(App.Vector(18, -12.3, 0), App.Vector(19.1, -10.8, 0)),
    Part.LineSegment(App.Vector(19.1, -10.8, 0), App.Vector(19.1, -12.8, 0)),
], False)
sketch11.addConstraint([
    Sketcher.Constraint("Coincident", 0, 2, 1, 1),
    Sketcher.Constraint("Coincident", 1, 2, 2, 1),
    Sketcher.Constraint("Coincident", 2, 2, 3, 1),
    Sketcher.Constraint("Coincident", 3, 2, 0, 1),
    Sketcher.Constraint("Coincident", 4, 2, 5, 1),
    Sketcher.Constraint("Coincident", 5, 2, 6, 1),
    Sketcher.Constraint("Coincident", 6, 2, 7, 1),
    Sketcher.Constraint("Coincident", 7, 2, 4, 1),
    Sketcher.Constraint("Horizontal", 0),
    Sketcher.Constraint("Vertical", 1),
    Sketcher.Constraint("Vertical", 3),
    Sketcher.Constraint("Horizontal", 4),
    Sketcher.Constraint("Vertical", 5),
    Sketcher.Constraint("Vertical", 7),
    Sketcher.Constraint("Vertical", 3, 2, 4, 2),
    Sketcher.Constraint("Vertical", 1, 2, 6, 2),
    Sketcher.Constraint("Equal", 3, 5),
    Sketcher.Constraint("Equal", 1, 7),
    Sketcher.Constraint("DistanceY", 1, 2, 1, 1, 2.0),
    Sketcher.Constraint("DistanceX", 0, 1, 0, 2, 1.1),
    Sketcher.Constraint("DistanceY", 3, 1, 3, 2, 0.5),
    Sketcher.Constraint("DistanceX", -1, 1, 2, 2, 18.0),
    Sketcher.Constraint("DistanceY", 0, 2, -1, 1, 49.2),
    Sketcher.Constraint("DistanceY", 4, 2, -1, 1, 12.8),
])
sketch11.setExpression("Constraints[18]", "Params.sketch11_height")
sketch11.setExpression("Constraints[19]", "Params.sketch11_width")
sketch11.setExpression("Constraints[20]", "Params.sketch11_height2")
pocket6 = body.newObject("PartDesign::Pocket", "Pocket005")
pocket6.Profile = sketch11
pocket6.setExpression("Length", "Params.pocket6_length")
pocket6.Reversed = True

sketch12 = body.newObject("Sketcher::SketchObject", "Sketch011")
sketch12.AttachmentSupport = (doc.getObject("XZ_Plane"), [""])
sketch12.MapMode = "FlatFace"
sketch12.AttachmentOffset = App.Placement(App.Vector(0, 0, -19.3), App.Rotation())
sketch12.addGeometry([
    Part.LineSegment(App.Vector(18, -12.3, 0), App.Vector(18, -10.5, 0)),
    Part.LineSegment(App.Vector(18, -10.5, 0), App.Vector(18.5, -10.5, 0)),
    Part.LineSegment(App.Vector(18.5, -10.5, 0), App.Vector(19, -10.9, 0)),
    Part.LineSegment(App.Vector(19, -10.9, 0), App.Vector(18, -12.3, 0)),
    Part.LineSegment(App.Vector(18, -51.5, 0), App.Vector(18, -49.7, 0)),
    Part.LineSegment(App.Vector(18, -49.7, 0), App.Vector(19, -51.1, 0)),
    Part.LineSegment(App.Vector(19, -51.1, 0), App.Vector(18.5, -51.5, 0)),
    Part.LineSegment(App.Vector(18.5, -51.5, 0), App.Vector(18, -51.5, 0)),
], False)
sketch12.addConstraint([
    Sketcher.Constraint("Coincident", 0, 2, 1, 1),
    Sketcher.Constraint("Coincident", 1, 2, 2, 1),
    Sketcher.Constraint("Coincident", 2, 2, 3, 1),
    Sketcher.Constraint("Coincident", 3, 2, 0, 1),
    Sketcher.Constraint("Coincident", 4, 2, 5, 1),
    Sketcher.Constraint("Coincident", 5, 2, 6, 1),
    Sketcher.Constraint("Coincident", 6, 2, 7, 1),
    Sketcher.Constraint("Coincident", 7, 2, 4, 1),
    Sketcher.Constraint("Vertical", 0),
    Sketcher.Constraint("Horizontal", 1),
    Sketcher.Constraint("Vertical", 4),
    Sketcher.Constraint("Horizontal", 7),
    Sketcher.Constraint("Perpendicular", 2, 3),
    Sketcher.Constraint("Perpendicular", 5, 6),
    Sketcher.Constraint("Vertical", 3, 2, 4, 2),
    Sketcher.Constraint("Vertical", 2, 2, 5, 2),
    Sketcher.Constraint("Vertical", 1, 2, 6, 2),
    Sketcher.Constraint("Equal", 0, 4),
    Sketcher.Constraint("DistanceX", 1, 1, 1, 2, 0.5),
    Sketcher.Constraint("DistanceY", 0, 1, 0, 2, 1.8),
    Sketcher.Constraint("DistanceX", -1, 1, 0, 2, 18.0),
    Sketcher.Constraint("DistanceY", 6, 2, 1, 2, 41.0),
    Sketcher.Constraint("DistanceY", 0, 2, -1, 1, 10.5),
    Sketcher.Constraint("Distance", 3, 1.747211),
])
sketch12.setExpression("Constraints[18]", "Params.sketch12_width")
sketch12.setExpression("Constraints[19]", "Params.sketch12_height")
pocket7 = body.newObject("PartDesign::Pocket", "Pocket006")
pocket7.Profile = sketch12
pocket7.setExpression("Length", "Params.pocket7_length")
pocket7.Reversed = True
doc.recompute()

fillet = body.newObject("PartDesign::Fillet", "Fillet")
fillet.Base = (pocket7, edges_at(pocket7, [(16.3, 11.7, -53.7), (19.1, 16, -52.8), (16.3, 20.3, -53.7)]))
fillet.setExpression("Radius", "Params.fillet_radius")
doc.recompute()

fillet2 = body.newObject("PartDesign::Fillet", "Fillet001")
fillet2.Base = (fillet, edges_at(fillet, [(16.3, 11.7, -8.3), (19.1, 16, -9.2), (16.3, 20.3, -8.3)]))
fillet2.setExpression("Radius", "Params.fillet2_radius")

sketch13 = body.newObject("Sketcher::SketchObject", "Sketch012")
sketch13.AttachmentSupport = (doc.getObject("YZ_Plane"), [""])
sketch13.MapMode = "FlatFace"
sketch13.AttachmentOffset = App.Placement(App.Vector(0, 0, 112), App.Rotation())
sketch13.addGeometry([
    Part.LineSegment(App.Vector(5, -21.4, 0), App.Vector(5, -42.6, 0)),
    Part.ArcOfCircle(Part.Circle(App.Vector(8, -42.6, 0), App.Vector(0, 0, 1), 3), math.radians(180), math.radians(270)),
    Part.LineSegment(App.Vector(8, -45.6, 0), App.Vector(21.2, -45.6, 0)),
    Part.ArcOfCircle(Part.Circle(App.Vector(21.2, -42.6, 0), App.Vector(0, 0, 1), 3), math.radians(-90), math.radians(0)),
    Part.LineSegment(App.Vector(24.2, -42.6, 0), App.Vector(24.2, -21.4, 0)),
    Part.ArcOfCircle(Part.Circle(App.Vector(21.2, -21.4, 0), App.Vector(0, 0, 1), 3), math.radians(0), math.radians(90)),
    Part.LineSegment(App.Vector(21.2, -18.4, 0), App.Vector(8, -18.4, 0)),
    Part.ArcOfCircle(Part.Circle(App.Vector(8, -21.4, 0), App.Vector(0, 0, 1), 3), math.radians(90), math.radians(180)),
], False)
sketch13.addConstraint([
    Sketcher.Constraint("Tangent", 0, 2, 1, 1),
    Sketcher.Constraint("Tangent", 1, 2, 2, 1),
    Sketcher.Constraint("Tangent", 2, 2, 3, 1),
    Sketcher.Constraint("Tangent", 3, 2, 4, 1),
    Sketcher.Constraint("Tangent", 4, 2, 5, 1),
    Sketcher.Constraint("Tangent", 5, 2, 6, 1),
    Sketcher.Constraint("Tangent", 6, 2, 7, 1),
    Sketcher.Constraint("Tangent", 7, 2, 0, 1),
    Sketcher.Constraint("Vertical", 0),
    Sketcher.Constraint("Horizontal", 2),
    Sketcher.Constraint("Vertical", 4),
    Sketcher.Constraint("Horizontal", 6),
    Sketcher.Constraint("Equal", 1, 3),
    Sketcher.Constraint("Equal", 3, 5),
    Sketcher.Constraint("Equal", 5, 7),
    Sketcher.Constraint("Radius", 1, 3.0),
    Sketcher.Constraint("DistanceX", 2, 1, 2, 2, 13.2),
    Sketcher.Constraint("DistanceY", 0, 2, 0, 1, 21.2),
    Sketcher.Constraint("DistanceX", -1, 1, 1, 3, 8.0),
    Sketcher.Constraint("DistanceY", 1, 3, -1, 1, 42.6),
])
sketch13.setExpression("Constraints[15]", "Params.sketch13_radius")
sketch13.setExpression("Constraints[16]", "Params.sketch13_width")
sketch13.setExpression("Constraints[17]", "Params.sketch13_height")
pocket8 = body.newObject("PartDesign::Pocket", "Pocket007")
pocket8.Profile = sketch13
pocket8.setExpression("Length", "Params.pocket8_length")

sketch14 = body.newObject("Sketcher::SketchObject", "Sketch013")
sketch14.AttachmentSupport = (doc.getObject("YZ_Plane"), [""])
sketch14.MapMode = "FlatFace"
sketch14.AttachmentOffset = App.Placement(App.Vector(0, 0, 112), App.Rotation())
sketch14.addGeometry([
    Part.Circle(App.Vector(14.6, -52, 0), App.Vector(0, 0, 1), 1.5),
    Part.Circle(App.Vector(14.6, -12, 0), App.Vector(0, 0, 1), 1.5),
], False)
sketch14.addConstraint([
    Sketcher.Constraint("Equal", 0, 1),
    Sketcher.Constraint("Vertical", 0, 3, 1, 3),
    Sketcher.Constraint("Diameter", 0, 3.0),
    Sketcher.Constraint("DistanceY", 0, 3, -1, 1, 52.0),
    Sketcher.Constraint("DistanceY", 1, 3, -1, 1, 12.0),
    Sketcher.Constraint("DistanceX", -1, 1, 0, 3, 14.6),
])
sketch14.setExpression("Constraints[2]", "Params.sketch14_diameter")
pocket9 = body.newObject("PartDesign::Pocket", "Pocket008")
pocket9.Profile = sketch14
pocket9.setExpression("Length", "Params.pocket9_length")

sketch15 = body.newObject("Sketcher::SketchObject", "Sketch014")
sketch15.AttachmentSupport = (doc.getObject("YZ_Plane"), [""])
sketch15.MapMode = "FlatFace"
sketch15.addGeometry([
    Part.Circle(App.Vector(37, -78, 0), App.Vector(0, 0, 1), 1.5),
    Part.Circle(App.Vector(37, -18, 0), App.Vector(0, 0, 1), 1.5),
], False)
sketch15.addConstraint([
    Sketcher.Constraint("Equal", 0, 1),
    Sketcher.Constraint("Vertical", 0, 3, 1, 3),
    Sketcher.Constraint("Diameter", 0, 3.0),
    Sketcher.Constraint("DistanceX", -1, 1, 0, 3, 37.0),
    Sketcher.Constraint("DistanceY", 0, 3, -1, 1, 78.0),
    Sketcher.Constraint("DistanceY", 1, 3, -1, 1, 18.0),
])
sketch15.setExpression("Constraints[2]", "Params.sketch15_diameter")
pocket10 = body.newObject("PartDesign::Pocket", "Pocket009")
pocket10.Profile = sketch15
pocket10.Type = "ThroughAll"
pocket10.Reversed = True

doc.recompute()
